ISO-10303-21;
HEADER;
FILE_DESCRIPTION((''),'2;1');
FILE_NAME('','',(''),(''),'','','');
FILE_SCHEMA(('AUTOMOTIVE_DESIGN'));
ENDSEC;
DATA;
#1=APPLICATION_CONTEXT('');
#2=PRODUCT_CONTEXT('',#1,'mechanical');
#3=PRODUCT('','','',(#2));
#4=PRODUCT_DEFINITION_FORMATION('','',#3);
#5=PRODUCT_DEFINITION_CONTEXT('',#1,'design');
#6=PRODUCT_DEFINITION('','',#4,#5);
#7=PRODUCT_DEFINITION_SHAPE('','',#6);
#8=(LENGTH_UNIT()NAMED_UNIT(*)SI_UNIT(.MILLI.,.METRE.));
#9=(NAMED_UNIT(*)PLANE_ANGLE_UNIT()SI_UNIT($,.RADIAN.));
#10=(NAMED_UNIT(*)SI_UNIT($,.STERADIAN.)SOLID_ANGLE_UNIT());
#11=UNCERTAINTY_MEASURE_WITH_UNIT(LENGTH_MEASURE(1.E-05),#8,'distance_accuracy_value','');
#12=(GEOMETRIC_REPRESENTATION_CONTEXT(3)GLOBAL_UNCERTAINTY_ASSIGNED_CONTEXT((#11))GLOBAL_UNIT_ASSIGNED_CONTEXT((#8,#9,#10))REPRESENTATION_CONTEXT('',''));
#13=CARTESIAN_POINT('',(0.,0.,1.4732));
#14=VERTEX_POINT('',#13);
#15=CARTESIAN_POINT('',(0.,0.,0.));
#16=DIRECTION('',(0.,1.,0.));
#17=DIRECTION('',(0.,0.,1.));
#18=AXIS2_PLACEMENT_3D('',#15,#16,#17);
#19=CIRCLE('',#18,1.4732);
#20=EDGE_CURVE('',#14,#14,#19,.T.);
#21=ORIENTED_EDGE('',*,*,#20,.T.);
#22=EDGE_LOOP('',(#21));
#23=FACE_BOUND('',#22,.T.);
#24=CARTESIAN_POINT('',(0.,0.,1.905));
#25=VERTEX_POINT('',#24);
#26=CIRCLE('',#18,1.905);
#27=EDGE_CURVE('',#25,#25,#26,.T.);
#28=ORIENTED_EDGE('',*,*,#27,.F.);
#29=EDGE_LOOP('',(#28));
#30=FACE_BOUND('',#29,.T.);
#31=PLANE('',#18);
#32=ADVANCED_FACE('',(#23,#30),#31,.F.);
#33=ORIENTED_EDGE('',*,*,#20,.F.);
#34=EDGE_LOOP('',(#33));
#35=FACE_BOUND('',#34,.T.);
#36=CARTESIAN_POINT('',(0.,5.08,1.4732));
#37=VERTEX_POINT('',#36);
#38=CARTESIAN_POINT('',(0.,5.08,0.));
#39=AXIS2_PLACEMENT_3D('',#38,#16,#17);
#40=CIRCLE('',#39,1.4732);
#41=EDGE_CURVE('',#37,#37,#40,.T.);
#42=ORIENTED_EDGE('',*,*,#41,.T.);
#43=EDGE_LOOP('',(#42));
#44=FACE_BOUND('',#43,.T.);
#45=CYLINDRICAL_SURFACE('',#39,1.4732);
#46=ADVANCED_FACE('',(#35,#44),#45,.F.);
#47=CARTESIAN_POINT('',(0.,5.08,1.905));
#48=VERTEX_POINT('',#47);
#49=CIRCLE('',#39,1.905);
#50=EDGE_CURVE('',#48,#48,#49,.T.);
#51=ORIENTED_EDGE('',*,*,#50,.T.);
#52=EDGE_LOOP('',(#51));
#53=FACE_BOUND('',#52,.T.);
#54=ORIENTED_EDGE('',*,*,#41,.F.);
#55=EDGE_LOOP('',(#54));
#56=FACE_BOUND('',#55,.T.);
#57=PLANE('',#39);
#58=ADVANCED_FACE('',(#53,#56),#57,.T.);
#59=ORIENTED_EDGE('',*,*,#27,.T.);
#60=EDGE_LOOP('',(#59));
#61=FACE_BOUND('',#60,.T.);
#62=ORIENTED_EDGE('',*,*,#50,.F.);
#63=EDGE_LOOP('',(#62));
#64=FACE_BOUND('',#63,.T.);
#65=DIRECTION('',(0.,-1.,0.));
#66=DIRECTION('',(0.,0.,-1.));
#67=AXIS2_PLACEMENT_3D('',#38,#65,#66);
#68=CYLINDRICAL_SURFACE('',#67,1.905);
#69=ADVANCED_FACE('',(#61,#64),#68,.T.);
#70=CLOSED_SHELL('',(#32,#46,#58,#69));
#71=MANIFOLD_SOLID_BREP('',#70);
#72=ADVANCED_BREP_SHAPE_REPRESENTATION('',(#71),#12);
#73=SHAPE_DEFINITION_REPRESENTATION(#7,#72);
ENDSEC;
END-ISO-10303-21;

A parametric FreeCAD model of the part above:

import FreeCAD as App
import Part
import Sketcher
from FreeCAD import Vector
Q = App.Units.Quantity

doc = App.newDocument("Part")
body = doc.addObject("PartDesign::Body", "Body")

sketch1 = body.newObject("Sketcher::SketchObject", "Sketch")
sketch1.AttachmentSupport = (doc.getObject("XZ_Plane"), [""])
sketch1.MapMode = "FlatFace"
sketch1.addGeometry(Part.Circle(Vector(0, 0, 0), Vector(0, 0, 1), 1.9), False)
sketch1.addConstraint([
    Sketcher.Constraint("Coincident", 0, 3, -1, 1),
    Sketcher.Constraint("Diameter", 0, Q("0.15 in")),
])
pad1 = body.newObject("PartDesign::Pad", "Pad")
pad1.Profile = sketch1
pad1.Length = Q("0.2 in")
pad1.Reversed = True

sketch2 = body.newObject("Sketcher::SketchObject", "Sketch001")
sketch2.AttachmentSupport = (doc.getObject("XZ_Plane"), [""])
sketch2.MapMode = "FlatFace"
sketch2.AttachmentOffset = App.Placement(Vector(0, 0, -0.2 * 25.4), App.Rotation())
sketch2.addGeometry(Part.Circle(Vector(0, 0, 0), Vector(0, 0, 1), 1.5), False)
sketch2.addConstraint([
    Sketcher.Constraint("Coincident", 0, 3, -1, 1),
    Sketcher.Constraint("Diameter", 0, Q("0.116 in")),
])
doc.recompute()
hole = body.newObject("PartDesign::Hole", "Hole")
hole.Profile = sketch2
hole.ThreadType = "None"
hole.Diameter = Q("0.116 in")
hole.DepthType = "ThroughAll"
hole.Reversed = True

doc.recompute()
